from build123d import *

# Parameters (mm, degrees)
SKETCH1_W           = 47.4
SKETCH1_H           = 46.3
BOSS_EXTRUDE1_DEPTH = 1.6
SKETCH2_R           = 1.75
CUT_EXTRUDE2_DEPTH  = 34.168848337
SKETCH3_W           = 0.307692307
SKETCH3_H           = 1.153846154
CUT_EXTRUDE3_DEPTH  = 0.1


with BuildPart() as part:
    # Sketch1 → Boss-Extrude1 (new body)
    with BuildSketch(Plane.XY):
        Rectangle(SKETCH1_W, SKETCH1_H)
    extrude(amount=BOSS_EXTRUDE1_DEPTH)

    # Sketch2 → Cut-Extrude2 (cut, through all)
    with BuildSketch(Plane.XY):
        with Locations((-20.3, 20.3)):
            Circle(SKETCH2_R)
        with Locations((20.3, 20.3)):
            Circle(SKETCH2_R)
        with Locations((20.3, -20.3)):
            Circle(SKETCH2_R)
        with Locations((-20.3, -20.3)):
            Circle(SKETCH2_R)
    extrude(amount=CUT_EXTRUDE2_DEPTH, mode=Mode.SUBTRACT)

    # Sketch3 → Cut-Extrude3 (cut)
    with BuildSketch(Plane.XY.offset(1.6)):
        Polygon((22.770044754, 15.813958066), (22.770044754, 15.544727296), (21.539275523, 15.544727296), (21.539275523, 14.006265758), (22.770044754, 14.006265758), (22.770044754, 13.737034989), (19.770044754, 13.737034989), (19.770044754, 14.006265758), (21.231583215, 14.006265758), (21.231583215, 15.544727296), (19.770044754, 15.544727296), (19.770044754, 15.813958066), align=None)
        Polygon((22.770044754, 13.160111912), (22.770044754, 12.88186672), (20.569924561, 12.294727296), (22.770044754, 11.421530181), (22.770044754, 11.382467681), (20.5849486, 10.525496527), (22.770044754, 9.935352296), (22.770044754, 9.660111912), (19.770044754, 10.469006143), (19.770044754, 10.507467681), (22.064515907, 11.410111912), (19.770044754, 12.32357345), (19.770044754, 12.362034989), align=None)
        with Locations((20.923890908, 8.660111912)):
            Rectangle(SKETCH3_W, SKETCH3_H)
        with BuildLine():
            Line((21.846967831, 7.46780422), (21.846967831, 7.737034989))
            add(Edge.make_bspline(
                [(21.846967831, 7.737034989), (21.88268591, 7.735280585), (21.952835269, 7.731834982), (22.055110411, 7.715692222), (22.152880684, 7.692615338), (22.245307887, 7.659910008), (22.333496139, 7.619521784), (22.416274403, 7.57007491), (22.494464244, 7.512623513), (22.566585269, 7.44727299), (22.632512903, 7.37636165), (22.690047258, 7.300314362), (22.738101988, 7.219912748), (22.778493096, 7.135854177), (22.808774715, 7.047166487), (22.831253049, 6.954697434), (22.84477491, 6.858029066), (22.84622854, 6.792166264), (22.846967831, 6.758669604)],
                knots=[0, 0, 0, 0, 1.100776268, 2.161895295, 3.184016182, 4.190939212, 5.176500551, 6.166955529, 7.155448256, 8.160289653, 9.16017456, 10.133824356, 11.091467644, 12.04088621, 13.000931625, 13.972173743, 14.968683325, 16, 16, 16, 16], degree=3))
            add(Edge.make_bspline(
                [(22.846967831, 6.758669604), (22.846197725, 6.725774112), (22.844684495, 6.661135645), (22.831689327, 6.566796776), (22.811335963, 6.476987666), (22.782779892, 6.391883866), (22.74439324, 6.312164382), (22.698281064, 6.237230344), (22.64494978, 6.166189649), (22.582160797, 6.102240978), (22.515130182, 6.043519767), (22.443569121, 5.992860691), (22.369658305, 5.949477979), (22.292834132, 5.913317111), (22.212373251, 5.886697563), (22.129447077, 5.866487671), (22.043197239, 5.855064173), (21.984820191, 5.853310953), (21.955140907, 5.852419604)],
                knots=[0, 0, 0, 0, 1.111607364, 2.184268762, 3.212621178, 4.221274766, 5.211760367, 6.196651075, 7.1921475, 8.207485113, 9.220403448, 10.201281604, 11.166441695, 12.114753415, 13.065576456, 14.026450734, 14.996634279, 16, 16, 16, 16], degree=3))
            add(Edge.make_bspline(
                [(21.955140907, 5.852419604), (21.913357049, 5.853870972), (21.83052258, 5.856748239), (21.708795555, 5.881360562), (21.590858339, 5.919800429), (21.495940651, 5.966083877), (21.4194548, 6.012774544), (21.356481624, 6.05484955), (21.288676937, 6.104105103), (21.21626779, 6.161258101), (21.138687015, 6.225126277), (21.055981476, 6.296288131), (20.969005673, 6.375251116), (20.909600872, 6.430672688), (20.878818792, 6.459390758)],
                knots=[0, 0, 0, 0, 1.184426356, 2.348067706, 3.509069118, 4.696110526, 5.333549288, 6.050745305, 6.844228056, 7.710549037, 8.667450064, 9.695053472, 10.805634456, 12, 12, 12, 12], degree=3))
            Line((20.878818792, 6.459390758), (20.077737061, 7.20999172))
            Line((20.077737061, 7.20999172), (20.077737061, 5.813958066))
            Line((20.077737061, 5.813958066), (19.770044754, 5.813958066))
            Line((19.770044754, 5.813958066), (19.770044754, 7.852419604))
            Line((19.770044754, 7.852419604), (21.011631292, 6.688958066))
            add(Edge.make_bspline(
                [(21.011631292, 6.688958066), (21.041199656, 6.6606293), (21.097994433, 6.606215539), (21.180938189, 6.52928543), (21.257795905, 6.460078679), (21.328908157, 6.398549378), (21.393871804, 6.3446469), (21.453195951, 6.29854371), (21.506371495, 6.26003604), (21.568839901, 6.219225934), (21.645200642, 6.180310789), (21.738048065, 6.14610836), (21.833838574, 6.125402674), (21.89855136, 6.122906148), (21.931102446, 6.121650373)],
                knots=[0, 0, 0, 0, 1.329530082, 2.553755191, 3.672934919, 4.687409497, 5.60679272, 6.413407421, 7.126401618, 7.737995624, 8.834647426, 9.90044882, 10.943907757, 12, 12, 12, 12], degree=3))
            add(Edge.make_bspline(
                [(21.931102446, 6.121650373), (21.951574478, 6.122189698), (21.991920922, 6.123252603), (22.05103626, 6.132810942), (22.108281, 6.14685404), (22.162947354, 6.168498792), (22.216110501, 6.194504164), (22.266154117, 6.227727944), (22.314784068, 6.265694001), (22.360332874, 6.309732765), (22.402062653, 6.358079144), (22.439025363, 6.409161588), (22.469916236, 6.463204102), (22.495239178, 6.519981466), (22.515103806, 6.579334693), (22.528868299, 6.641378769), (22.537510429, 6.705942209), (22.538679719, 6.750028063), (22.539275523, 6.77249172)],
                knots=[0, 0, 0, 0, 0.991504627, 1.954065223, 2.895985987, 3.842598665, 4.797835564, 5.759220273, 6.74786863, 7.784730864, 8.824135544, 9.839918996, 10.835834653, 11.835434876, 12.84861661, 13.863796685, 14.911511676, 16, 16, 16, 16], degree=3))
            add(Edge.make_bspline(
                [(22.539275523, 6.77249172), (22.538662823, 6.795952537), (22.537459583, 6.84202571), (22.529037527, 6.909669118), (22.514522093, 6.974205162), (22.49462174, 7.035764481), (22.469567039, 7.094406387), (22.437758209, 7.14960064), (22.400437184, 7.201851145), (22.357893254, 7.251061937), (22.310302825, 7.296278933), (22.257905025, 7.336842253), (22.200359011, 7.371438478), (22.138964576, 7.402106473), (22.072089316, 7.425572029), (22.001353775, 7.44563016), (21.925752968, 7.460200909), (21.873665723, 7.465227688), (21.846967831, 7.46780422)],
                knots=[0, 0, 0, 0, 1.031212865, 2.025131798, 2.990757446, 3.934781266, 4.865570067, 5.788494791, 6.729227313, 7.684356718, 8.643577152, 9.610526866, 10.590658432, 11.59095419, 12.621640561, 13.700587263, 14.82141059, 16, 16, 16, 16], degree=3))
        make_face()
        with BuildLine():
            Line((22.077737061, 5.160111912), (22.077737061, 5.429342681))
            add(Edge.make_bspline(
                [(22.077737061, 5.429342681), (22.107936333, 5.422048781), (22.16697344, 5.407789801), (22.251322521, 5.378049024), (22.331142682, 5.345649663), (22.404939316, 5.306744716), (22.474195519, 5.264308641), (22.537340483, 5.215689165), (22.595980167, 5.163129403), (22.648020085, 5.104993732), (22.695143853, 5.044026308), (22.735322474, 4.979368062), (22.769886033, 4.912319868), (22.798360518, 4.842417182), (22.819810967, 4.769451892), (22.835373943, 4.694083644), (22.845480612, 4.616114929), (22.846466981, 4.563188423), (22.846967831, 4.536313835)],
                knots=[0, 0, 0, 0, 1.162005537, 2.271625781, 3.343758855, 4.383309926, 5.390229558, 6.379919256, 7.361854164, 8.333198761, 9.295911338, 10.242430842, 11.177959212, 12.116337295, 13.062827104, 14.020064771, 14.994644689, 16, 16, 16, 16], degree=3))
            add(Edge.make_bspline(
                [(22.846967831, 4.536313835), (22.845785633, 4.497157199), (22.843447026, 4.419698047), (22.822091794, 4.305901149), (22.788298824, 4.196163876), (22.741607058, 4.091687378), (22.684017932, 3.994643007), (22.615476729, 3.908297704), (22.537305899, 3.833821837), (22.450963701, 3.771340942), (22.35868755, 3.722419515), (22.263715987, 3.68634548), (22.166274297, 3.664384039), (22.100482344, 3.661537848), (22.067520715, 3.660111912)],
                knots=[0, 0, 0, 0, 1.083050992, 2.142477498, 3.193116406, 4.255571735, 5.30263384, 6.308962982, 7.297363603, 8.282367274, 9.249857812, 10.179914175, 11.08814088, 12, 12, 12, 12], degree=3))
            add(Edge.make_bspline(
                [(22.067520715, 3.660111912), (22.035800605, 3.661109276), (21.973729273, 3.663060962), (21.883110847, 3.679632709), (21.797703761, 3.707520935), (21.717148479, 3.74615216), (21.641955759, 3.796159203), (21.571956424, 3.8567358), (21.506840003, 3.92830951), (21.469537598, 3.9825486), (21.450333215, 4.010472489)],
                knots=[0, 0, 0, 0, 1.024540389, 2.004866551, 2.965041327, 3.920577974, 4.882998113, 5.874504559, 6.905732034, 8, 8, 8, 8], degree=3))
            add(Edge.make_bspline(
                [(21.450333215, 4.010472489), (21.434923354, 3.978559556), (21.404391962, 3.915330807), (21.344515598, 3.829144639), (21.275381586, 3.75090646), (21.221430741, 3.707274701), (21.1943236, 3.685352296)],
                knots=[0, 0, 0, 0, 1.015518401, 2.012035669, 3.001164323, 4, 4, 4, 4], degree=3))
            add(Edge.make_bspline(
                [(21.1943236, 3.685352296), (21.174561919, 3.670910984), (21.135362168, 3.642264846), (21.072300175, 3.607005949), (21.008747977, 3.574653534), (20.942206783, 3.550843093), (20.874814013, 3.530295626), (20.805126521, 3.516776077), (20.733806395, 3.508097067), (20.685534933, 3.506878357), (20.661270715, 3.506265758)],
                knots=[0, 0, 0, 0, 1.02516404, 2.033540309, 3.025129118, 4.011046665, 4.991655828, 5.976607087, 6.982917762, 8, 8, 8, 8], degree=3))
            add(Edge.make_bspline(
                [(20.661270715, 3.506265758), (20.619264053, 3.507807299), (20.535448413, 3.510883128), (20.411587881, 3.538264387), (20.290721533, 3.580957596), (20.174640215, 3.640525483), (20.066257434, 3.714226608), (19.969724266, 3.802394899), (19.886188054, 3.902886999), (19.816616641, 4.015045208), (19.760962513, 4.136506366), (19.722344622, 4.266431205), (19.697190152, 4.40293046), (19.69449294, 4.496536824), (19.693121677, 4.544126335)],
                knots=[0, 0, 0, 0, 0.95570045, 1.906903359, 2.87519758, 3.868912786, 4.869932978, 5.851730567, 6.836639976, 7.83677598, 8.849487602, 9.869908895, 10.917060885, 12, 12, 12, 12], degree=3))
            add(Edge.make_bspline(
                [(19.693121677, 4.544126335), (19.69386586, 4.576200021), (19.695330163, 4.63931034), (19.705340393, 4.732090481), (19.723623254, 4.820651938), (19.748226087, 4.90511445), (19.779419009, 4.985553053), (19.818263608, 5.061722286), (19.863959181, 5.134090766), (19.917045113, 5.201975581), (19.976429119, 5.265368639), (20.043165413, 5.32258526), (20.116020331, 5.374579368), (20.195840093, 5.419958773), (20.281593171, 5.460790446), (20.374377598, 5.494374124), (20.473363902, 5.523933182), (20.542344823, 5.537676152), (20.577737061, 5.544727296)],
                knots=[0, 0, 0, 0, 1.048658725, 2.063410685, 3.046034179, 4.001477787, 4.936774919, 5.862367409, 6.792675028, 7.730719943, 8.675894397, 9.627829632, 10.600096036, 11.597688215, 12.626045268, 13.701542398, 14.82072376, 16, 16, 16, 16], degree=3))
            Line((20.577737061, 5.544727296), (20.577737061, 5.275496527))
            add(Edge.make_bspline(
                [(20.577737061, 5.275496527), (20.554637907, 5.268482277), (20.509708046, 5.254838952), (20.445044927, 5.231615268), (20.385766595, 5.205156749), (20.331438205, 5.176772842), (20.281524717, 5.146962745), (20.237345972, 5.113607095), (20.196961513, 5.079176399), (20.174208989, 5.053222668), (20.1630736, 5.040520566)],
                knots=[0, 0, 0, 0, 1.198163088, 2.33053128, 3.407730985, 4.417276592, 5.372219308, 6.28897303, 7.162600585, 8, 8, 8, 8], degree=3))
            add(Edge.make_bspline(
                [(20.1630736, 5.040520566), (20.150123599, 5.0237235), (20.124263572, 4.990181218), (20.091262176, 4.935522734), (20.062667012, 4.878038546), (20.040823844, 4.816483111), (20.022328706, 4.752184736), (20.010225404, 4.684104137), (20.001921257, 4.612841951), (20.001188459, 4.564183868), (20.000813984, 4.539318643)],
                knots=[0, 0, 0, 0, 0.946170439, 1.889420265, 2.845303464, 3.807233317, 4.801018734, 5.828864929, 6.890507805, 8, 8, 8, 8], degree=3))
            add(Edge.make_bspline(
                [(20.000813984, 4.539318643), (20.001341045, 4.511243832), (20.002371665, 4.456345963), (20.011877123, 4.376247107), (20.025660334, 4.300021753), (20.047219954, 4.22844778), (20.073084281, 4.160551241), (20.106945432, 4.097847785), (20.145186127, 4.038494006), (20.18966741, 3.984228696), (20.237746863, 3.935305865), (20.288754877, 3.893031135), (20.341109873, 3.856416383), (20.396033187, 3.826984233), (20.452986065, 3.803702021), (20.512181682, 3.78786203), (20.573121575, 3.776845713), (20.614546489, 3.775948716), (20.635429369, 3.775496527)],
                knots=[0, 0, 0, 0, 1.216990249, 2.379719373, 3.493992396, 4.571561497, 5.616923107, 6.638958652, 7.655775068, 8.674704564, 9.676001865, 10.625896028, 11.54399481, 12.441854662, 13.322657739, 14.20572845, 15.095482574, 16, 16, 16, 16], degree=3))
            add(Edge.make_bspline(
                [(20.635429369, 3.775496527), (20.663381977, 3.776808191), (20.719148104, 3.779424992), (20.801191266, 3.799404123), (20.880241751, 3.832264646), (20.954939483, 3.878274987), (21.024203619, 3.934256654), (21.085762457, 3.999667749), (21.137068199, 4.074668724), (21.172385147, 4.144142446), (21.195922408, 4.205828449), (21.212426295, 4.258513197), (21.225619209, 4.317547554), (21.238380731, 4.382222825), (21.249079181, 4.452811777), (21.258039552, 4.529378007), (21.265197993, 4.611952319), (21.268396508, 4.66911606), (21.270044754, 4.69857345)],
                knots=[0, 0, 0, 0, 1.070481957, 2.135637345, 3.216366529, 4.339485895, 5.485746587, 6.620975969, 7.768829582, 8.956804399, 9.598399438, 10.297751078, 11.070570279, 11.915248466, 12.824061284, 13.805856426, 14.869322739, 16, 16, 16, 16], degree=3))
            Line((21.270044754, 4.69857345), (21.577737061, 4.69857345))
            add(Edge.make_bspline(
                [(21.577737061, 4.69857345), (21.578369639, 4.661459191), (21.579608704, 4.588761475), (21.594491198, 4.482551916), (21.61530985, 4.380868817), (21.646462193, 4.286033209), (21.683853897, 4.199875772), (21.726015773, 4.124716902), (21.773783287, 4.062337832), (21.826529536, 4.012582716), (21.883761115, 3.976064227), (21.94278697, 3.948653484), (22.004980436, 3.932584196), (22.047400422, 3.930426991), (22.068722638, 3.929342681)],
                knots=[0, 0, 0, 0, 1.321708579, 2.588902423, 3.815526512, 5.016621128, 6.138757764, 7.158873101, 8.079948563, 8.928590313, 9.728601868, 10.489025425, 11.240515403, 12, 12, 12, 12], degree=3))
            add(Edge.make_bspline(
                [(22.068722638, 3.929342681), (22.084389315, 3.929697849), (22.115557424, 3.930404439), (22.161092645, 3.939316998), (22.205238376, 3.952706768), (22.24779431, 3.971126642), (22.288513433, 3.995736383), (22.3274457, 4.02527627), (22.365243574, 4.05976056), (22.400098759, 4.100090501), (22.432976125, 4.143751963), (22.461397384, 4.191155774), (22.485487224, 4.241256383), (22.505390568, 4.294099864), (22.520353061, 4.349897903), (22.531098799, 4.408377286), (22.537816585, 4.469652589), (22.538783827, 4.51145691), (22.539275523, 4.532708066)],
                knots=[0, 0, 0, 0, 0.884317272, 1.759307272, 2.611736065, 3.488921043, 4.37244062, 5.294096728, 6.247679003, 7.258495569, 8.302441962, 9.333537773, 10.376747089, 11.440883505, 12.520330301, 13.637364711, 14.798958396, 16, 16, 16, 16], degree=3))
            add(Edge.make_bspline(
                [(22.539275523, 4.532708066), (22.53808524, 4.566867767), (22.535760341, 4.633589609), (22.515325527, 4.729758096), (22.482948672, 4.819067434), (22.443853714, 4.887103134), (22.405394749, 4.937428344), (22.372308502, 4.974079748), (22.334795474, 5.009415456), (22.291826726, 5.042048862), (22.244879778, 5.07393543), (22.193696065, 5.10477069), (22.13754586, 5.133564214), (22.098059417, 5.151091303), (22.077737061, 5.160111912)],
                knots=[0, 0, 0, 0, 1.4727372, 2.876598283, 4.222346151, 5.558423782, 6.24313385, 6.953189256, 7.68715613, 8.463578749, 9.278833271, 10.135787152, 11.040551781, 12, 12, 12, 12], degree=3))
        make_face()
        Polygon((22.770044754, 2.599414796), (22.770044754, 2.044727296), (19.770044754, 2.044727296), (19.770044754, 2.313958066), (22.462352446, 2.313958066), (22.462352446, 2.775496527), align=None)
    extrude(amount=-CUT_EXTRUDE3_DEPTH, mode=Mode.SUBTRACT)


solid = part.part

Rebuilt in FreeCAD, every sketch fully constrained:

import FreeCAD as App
import Part
import Sketcher

doc = App.newDocument("Part")
body = doc.addObject("PartDesign::Body", "Body")

sketch1 = body.newObject("Sketcher::SketchObject", "Sketch")
sketch1.AttachmentSupport = (doc.getObject("XY_Plane"), [""])
sketch1.MapMode = "FlatFace"
sketch1.addGeometry([
    Part.LineSegment(App.Vector(-24, 23, 0), App.Vector(-24, -23, 0)),
    Part.LineSegment(App.Vector(-24, -23, 0), App.Vector(24, -23, 0)),
    Part.LineSegment(App.Vector(24, -23, 0), App.Vector(24, 23, 0)),
    Part.LineSegment(App.Vector(24, 23, 0), App.Vector(-24, 23, 0)),
], False)
sketch1.addConstraint([
    Sketcher.Constraint("Coincident", 0, 2, 1, 1),
    Sketcher.Constraint("Coincident", 1, 2, 2, 1),
    Sketcher.Constraint("Coincident", 2, 2, 3, 1),
    Sketcher.Constraint("Coincident", 3, 2, 0, 1),
    Sketcher.Constraint("Vertical", 0),
    Sketcher.Constraint("Horizontal", 1),
    Sketcher.Constraint("Vertical", 2),
    Sketcher.Constraint("Horizontal", 3),
    Sketcher.Constraint("Symmetric", 0, 2, 2, 2, -1, 1),
    Sketcher.Constraint("DistanceX", 1, 1, 1, 2, 47.4),
    Sketcher.Constraint("DistanceY", 0, 2, 0, 1, 46.3),
])
pad1 = body.newObject("PartDesign::Pad", "Pad")
pad1.Profile = sketch1
pad1.Length = 1.6

sketch2 = body.newObject("Sketcher::SketchObject", "Sketch001")
sketch2.AttachmentSupport = (doc.getObject("XY_Plane"), [""])
sketch2.MapMode = "FlatFace"
sketch2.addGeometry([
    Part.Circle(App.Vector(-20.3, 20.3, 0), App.Vector(0, 0, 1), 1.8),
    Part.Circle(App.Vector(20.3, 20.3, 0), App.Vector(0, 0, 1), 1.8),
    Part.Circle(App.Vector(20.3, -20.3, 0), App.Vector(0, 0, 1), 1.8),
    Part.Circle(App.Vector(-20.3, -20.3, 0), App.Vector(0, 0, 1), 1.8),
], False)
sketch2.addConstraint([
    Sketcher.Constraint("Equal", 0, 1),
    Sketcher.Constraint("Equal", 1, 2),
    Sketcher.Constraint("Equal", 2, 3),
    Sketcher.Constraint("Symmetric", 0, 3, 2, 3, -1, 1),
    Sketcher.Constraint("Symmetric", 1, 3, 3, 3, -1, 1),
    Sketcher.Constraint("Symmetric", 0, 3, 1, 3, -2),
    Sketcher.Constraint("Diameter", 0, 3.5),
    Sketcher.Constraint("DistanceX", 0, 3, -1, 1, 20.3),
    Sketcher.Constraint("DistanceY", -1, 1, 0, 3, 20.3),
])
pocket1 = body.newObject("PartDesign::Pocket", "Pocket")
pocket1.Profile = sketch2
pocket1.Type = "ThroughAll"
pocket1.Reversed = True

sketch3 = body.newObject("Sketcher::SketchObject", "Sketch002")
sketch3.AttachmentSupport = (doc.getObject("XY_Plane"), [""])
sketch3.MapMode = "FlatFace"
sketch3.AttachmentOffset = App.Placement(App.Vector(0, 0, 1.6), App.Rotation())
sketch3.addGeometry([
    Part.LineSegment(App.Vector(22.770045, 15.544727, 0), App.Vector(22.770045, 15.813958, 0)),
    Part.LineSegment(App.Vector(22.770045, 15.813958, 0), App.Vector(19.770045, 15.813958, 0)),
    Part.LineSegment(App.Vector(19.770045, 15.813958, 0), App.Vector(19.770045, 15.544727, 0)),
    Part.LineSegment(App.Vector(19.770045, 15.544727, 0), App.Vector(21.231583, 15.544727, 0)),
    Part.LineSegment(App.Vector(21.231583, 15.544727, 0), App.Vector(21.231583, 14.006266, 0)),
    Part.LineSegment(App.Vector(21.231583, 14.006266, 0), App.Vector(19.770045, 14.006266, 0)),
    Part.LineSegment(App.Vector(19.770045, 14.006266, 0), App.Vector(19.770045, 13.737035, 0)),
    Part.LineSegment(App.Vector(19.770045, 13.737035, 0), App.Vector(22.770045, 13.737035, 0)),
    Part.LineSegment(App.Vector(22.770045, 13.737035, 0), App.Vector(22.770045, 14.006266, 0)),
    Part.LineSegment(App.Vector(22.770045, 14.006266, 0), App.Vector(21.539276, 14.006266, 0)),
    Part.LineSegment(App.Vector(21.539276, 14.006266, 0), App.Vector(21.539276, 15.544727, 0)),
    Part.LineSegment(App.Vector(21.539276, 15.544727, 0), App.Vector(22.770045, 15.544727, 0)),
    Part.LineSegment(App.Vector(22.770045, 12.881867, 0), App.Vector(22.770045, 13.160112, 0)),
    Part.LineSegment(App.Vector(22.770045, 13.160112, 0), App.Vector(19.770045, 12.362035, 0)),
    Part.LineSegment(App.Vector(19.770045, 12.362035, 0), App.Vector(19.770045, 12.323573, 0)),
    Part.LineSegment(App.Vector(19.770045, 12.323573, 0), App.Vector(22.064516, 11.410112, 0)),
    Part.LineSegment(App.Vector(22.064516, 11.410112, 0), App.Vector(19.770045, 10.507468, 0)),
    Part.LineSegment(App.Vector(19.770045, 10.507468, 0), App.Vector(19.770045, 10.469006, 0)),
    Part.LineSegment(App.Vector(19.770045, 10.469006, 0), App.Vector(22.770045, 9.660112, 0)),
    Part.LineSegment(App.Vector(22.770045, 9.660112, 0), App.Vector(22.770045, 9.935352, 0)),
    Part.LineSegment(App.Vector(22.770045, 9.935352, 0), App.Vector(20.584949, 10.525497, 0)),
    Part.LineSegment(App.Vector(20.584949, 10.525497, 0), App.Vector(22.770045, 11.382468, 0)),
    Part.LineSegment(App.Vector(22.770045, 11.382468, 0), App.Vector(22.770045, 11.42153, 0)),
    Part.LineSegment(App.Vector(22.770045, 11.42153, 0), App.Vector(20.569925, 12.294727, 0)),
    Part.LineSegment(App.Vector(20.569925, 12.294727, 0), App.Vector(22.770045, 12.881867, 0)),
    Part.LineSegment(App.Vector(20.770045, 9.237035, 0), App.Vector(20.770045, 8.083189, 0)),
    Part.LineSegment(App.Vector(20.770045, 8.083189, 0), App.Vector(21.077737, 8.083189, 0)),
    Part.LineSegment(App.Vector(21.077737, 8.083189, 0), App.Vector(21.077737, 9.237035, 0)),
    Part.LineSegment(App.Vector(21.077737, 9.237035, 0), App.Vector(20.770045, 9.237035, 0)),
    Part.LineSegment(App.Vector(21.846968, 7.737035, 0), App.Vector(21.846968, 7.467804, 0)),
    Part.BSplineCurve([App.Vector(22.539276, 6.772492, 0), App.Vector(22.538663, 6.795953, 0), App.Vector(22.53746, 6.842026, 0), App.Vector(22.529038, 6.909669, 0), App.Vector(22.514522, 6.974205, 0), App.Vector(22.494622, 7.035764, 0), App.Vector(22.469567, 7.094406, 0), App.Vector(22.437758, 7.149601, 0), App.Vector(22.400437, 7.201851, 0), App.Vector(22.357893, 7.251062, 0), App.Vector(22.310303, 7.296279, 0), App.Vector(22.257905, 7.336842, 0), App.Vector(22.200359, 7.371438, 0), App.Vector(22.138965, 7.402106, 0), App.Vector(22.072089, 7.425572, 0), App.Vector(22.001354, 7.44563, 0), App.Vector(21.925753, 7.460201, 0), App.Vector(21.873666, 7.465228, 0), App.Vector(21.846968, 7.467804, 0)], [4, 1, 1, 1, 1, 1, 1, 1, 1, 1, 1, 1, 1, 1, 1, 1, 4], [0, 1.031212865, 2.025131798, 2.990757446, 3.934781266, 4.865570067, 5.788494791, 6.729227313, 7.684356718, 8.643577152, 9.610526866, 10.590658432, 11.59095419, 12.621640561, 13.700587263, 14.82141059, 16], False, 3, [1, 1, 1, 1, 1, 1, 1, 1, 1, 1, 1, 1, 1, 1, 1, 1, 1, 1, 1], False),
    Part.BSplineCurve([App.Vector(21.931102, 6.12165, 0), App.Vector(21.951574, 6.12219, 0), App.Vector(21.991921, 6.123253, 0), App.Vector(22.051036, 6.132811, 0), App.Vector(22.108281, 6.146854, 0), App.Vector(22.162947, 6.168499, 0), App.Vector(22.216111, 6.194504, 0), App.Vector(22.266154, 6.227728, 0), App.Vector(22.314784, 6.265694, 0), App.Vector(22.360333, 6.309733, 0), App.Vector(22.402063, 6.358079, 0), App.Vector(22.439025, 6.409162, 0), App.Vector(22.469916, 6.463204, 0), App.Vector(22.495239, 6.519981, 0), App.Vector(22.515104, 6.579335, 0), App.Vector(22.528868, 6.641379, 0), App.Vector(22.53751, 6.705942, 0), App.Vector(22.53868, 6.750028, 0), App.Vector(22.539276, 6.772492, 0)], [4, 1, 1, 1, 1, 1, 1, 1, 1, 1, 1, 1, 1, 1, 1, 1, 4], [0, 0.991504627, 1.954065223, 2.895985987, 3.842598665, 4.797835564, 5.759220273, 6.74786863, 7.784730864, 8.824135544, 9.839918996, 10.835834653, 11.835434876, 12.84861661, 13.863796685, 14.911511676, 16], False, 3, [1, 1, 1, 1, 1, 1, 1, 1, 1, 1, 1, 1, 1, 1, 1, 1, 1, 1, 1], False),
    Part.BSplineCurve([App.Vector(21.011631, 6.688958, 0), App.Vector(21.0412, 6.660629, 0), App.Vector(21.097994, 6.606216, 0), App.Vector(21.180938, 6.529285, 0), App.Vector(21.257796, 6.460079, 0), App.Vector(21.328908, 6.398549, 0), App.Vector(21.393872, 6.344647, 0), App.Vector(21.453196, 6.298544, 0), App.Vector(21.506371, 6.260036, 0), App.Vector(21.56884, 6.219226, 0), App.Vector(21.645201, 6.180311, 0), App.Vector(21.738048, 6.146108, 0), App.Vector(21.833839, 6.125403, 0), App.Vector(21.898551, 6.122906, 0), App.Vector(21.931102, 6.12165, 0)], [4, 1, 1, 1, 1, 1, 1, 1, 1, 1, 1, 1, 4], [0, 1.329530082, 2.553755191, 3.672934919, 4.687409497, 5.60679272, 6.413407421, 7.126401618, 7.737995624, 8.834647426, 9.90044882, 10.943907757, 12], False, 3, [1, 1, 1, 1, 1, 1, 1, 1, 1, 1, 1, 1, 1, 1, 1], False),
    Part.LineSegment(App.Vector(21.011631, 6.688958, 0), App.Vector(19.770045, 7.85242, 0)),
    Part.LineSegment(App.Vector(19.770045, 7.85242, 0), App.Vector(19.770045, 5.813958, 0)),
    Part.LineSegment(App.Vector(19.770045, 5.813958, 0), App.Vector(20.077737, 5.813958, 0)),
    Part.LineSegment(App.Vector(20.077737, 5.813958, 0), App.Vector(20.077737, 7.209992, 0)),
    Part.LineSegment(App.Vector(20.077737, 7.209992, 0), App.Vector(20.878819, 6.459391, 0)),
    Part.BSplineCurve([App.Vector(21.955141, 5.85242, 0), App.Vector(21.913357, 5.853871, 0), App.Vector(21.830523, 5.856748, 0), App.Vector(21.708796, 5.881361, 0), App.Vector(21.590858, 5.9198, 0), App.Vector(21.495941, 5.966084, 0), App.Vector(21.419455, 6.012775, 0), App.Vector(21.356482, 6.05485, 0), App.Vector(21.288677, 6.104105, 0), App.Vector(21.216268, 6.161258, 0), App.Vector(21.138687, 6.225126, 0), App.Vector(21.055981, 6.296288, 0), App.Vector(20.969006, 6.375251, 0), App.Vector(20.909601, 6.430673, 0), App.Vector(20.878819, 6.459391, 0)], [4, 1, 1, 1, 1, 1, 1, 1, 1, 1, 1, 1, 4], [0, 1.184426356, 2.348067706, 3.509069118, 4.696110526, 5.333549288, 6.050745305, 6.844228056, 7.710549037, 8.667450064, 9.695053472, 10.805634456, 12], False, 3, [1, 1, 1, 1, 1, 1, 1, 1, 1, 1, 1, 1, 1, 1, 1], False),
    Part.BSplineCurve([App.Vector(22.846968, 6.75867, 0), App.Vector(22.846198, 6.725774, 0), App.Vector(22.844684, 6.661136, 0), App.Vector(22.831689, 6.566797, 0), App.Vector(22.811336, 6.476988, 0), App.Vector(22.78278, 6.391884, 0), App.Vector(22.744393, 6.312164, 0), App.Vector(22.698281, 6.23723, 0), App.Vector(22.64495, 6.16619, 0), App.Vector(22.582161, 6.102241, 0), App.Vector(22.51513, 6.04352, 0), App.Vector(22.443569, 5.992861, 0), App.Vector(22.369658, 5.949478, 0), App.Vector(22.292834, 5.913317, 0), App.Vector(22.212373, 5.886698, 0), App.Vector(22.129447, 5.866488, 0), App.Vector(22.043197, 5.855064, 0), App.Vector(21.98482, 5.853311, 0), App.Vector(21.955141, 5.85242, 0)], [4, 1, 1, 1, 1, 1, 1, 1, 1, 1, 1, 1, 1, 1, 1, 1, 4], [0, 1.111607364, 2.184268762, 3.212621178, 4.221274766, 5.211760367, 6.196651075, 7.1921475, 8.207485113, 9.220403448, 10.201281604, 11.166441695, 12.114753415, 13.065576456, 14.026450734, 14.996634279, 16], False, 3, [1, 1, 1, 1, 1, 1, 1, 1, 1, 1, 1, 1, 1, 1, 1, 1, 1, 1, 1], False),
    Part.BSplineCurve([App.Vector(21.846968, 7.737035, 0), App.Vector(21.882686, 7.735281, 0), App.Vector(21.952835, 7.731835, 0), App.Vector(22.05511, 7.715692, 0), App.Vector(22.152881, 7.692615, 0), App.Vector(22.245308, 7.65991, 0), App.Vector(22.333496, 7.619522, 0), App.Vector(22.416274, 7.570075, 0), App.Vector(22.494464, 7.512624, 0), App.Vector(22.566585, 7.447273, 0), App.Vector(22.632513, 7.376362, 0), App.Vector(22.690047, 7.300314, 0), App.Vector(22.738102, 7.219913, 0), App.Vector(22.778493, 7.135854, 0), App.Vector(22.808775, 7.047166, 0), App.Vector(22.831253, 6.954697, 0), App.Vector(22.844775, 6.858029, 0), App.Vector(22.846229, 6.792166, 0), App.Vector(22.846968, 6.75867, 0)], [4, 1, 1, 1, 1, 1, 1, 1, 1, 1, 1, 1, 1, 1, 1, 1, 4], [0, 1.100776268, 2.161895295, 3.184016182, 4.190939212, 5.176500551, 6.166955529, 7.155448256, 8.160289653, 9.16017456, 10.133824356, 11.091467644, 12.04088621, 13.000931625, 13.972173743, 14.968683325, 16], False, 3, [1, 1, 1, 1, 1, 1, 1, 1, 1, 1, 1, 1, 1, 1, 1, 1, 1, 1, 1], False),
    Part.LineSegment(App.Vector(22.077737, 5.429343, 0), App.Vector(22.077737, 5.160112, 0)),
    Part.BSplineCurve([App.Vector(22.539276, 4.532708, 0), App.Vector(22.538085, 4.566868, 0), App.Vector(22.53576, 4.63359, 0), App.Vector(22.515326, 4.729758, 0), App.Vector(22.482949, 4.819067, 0), App.Vector(22.443854, 4.887103, 0), App.Vector(22.405395, 4.937428, 0), App.Vector(22.372309, 4.97408, 0), App.Vector(22.334795, 5.009415, 0), App.Vector(22.291827, 5.042049, 0), App.Vector(22.24488, 5.073935, 0), App.Vector(22.193696, 5.104771, 0), App.Vector(22.137546, 5.133564, 0), App.Vector(22.098059, 5.151091, 0), App.Vector(22.077737, 5.160112, 0)], [4, 1, 1, 1, 1, 1, 1, 1, 1, 1, 1, 1, 4], [0, 1.4727372, 2.876598283, 4.222346151, 5.558423782, 6.24313385, 6.953189256, 7.68715613, 8.463578749, 9.278833271, 10.135787152, 11.040551781, 12], False, 3, [1, 1, 1, 1, 1, 1, 1, 1, 1, 1, 1, 1, 1, 1, 1], False),
    Part.BSplineCurve([App.Vector(22.068723, 3.929343, 0), App.Vector(22.084389, 3.929698, 0), App.Vector(22.115557, 3.930404, 0), App.Vector(22.161093, 3.939317, 0), App.Vector(22.205238, 3.952707, 0), App.Vector(22.247794, 3.971127, 0), App.Vector(22.288513, 3.995736, 0), App.Vector(22.327446, 4.025276, 0), App.Vector(22.365244, 4.059761, 0), App.Vector(22.400099, 4.100091, 0), App.Vector(22.432976, 4.143752, 0), App.Vector(22.461397, 4.191156, 0), App.Vector(22.485487, 4.241256, 0), App.Vector(22.505391, 4.2941, 0), App.Vector(22.520353, 4.349898, 0), App.Vector(22.531099, 4.408377, 0), App.Vector(22.537817, 4.469653, 0), App.Vector(22.538784, 4.511457, 0), App.Vector(22.539276, 4.532708, 0)], [4, 1, 1, 1, 1, 1, 1, 1, 1, 1, 1, 1, 1, 1, 1, 1, 4], [0, 0.884317272, 1.759307272, 2.611736065, 3.488921043, 4.37244062, 5.294096728, 6.247679003, 7.258495569, 8.302441962, 9.333537773, 10.376747089, 11.440883505, 12.520330301, 13.637364711, 14.798958396, 16], False, 3, [1, 1, 1, 1, 1, 1, 1, 1, 1, 1, 1, 1, 1, 1, 1, 1, 1, 1, 1], False),
    Part.BSplineCurve([App.Vector(21.577737, 4.698573, 0), App.Vector(21.57837, 4.661459, 0), App.Vector(21.579609, 4.588761, 0), App.Vector(21.594491, 4.482552, 0), App.Vector(21.61531, 4.380869, 0), App.Vector(21.646462, 4.286033, 0), App.Vector(21.683854, 4.199876, 0), App.Vector(21.726016, 4.124717, 0), App.Vector(21.773783, 4.062338, 0), App.Vector(21.82653, 4.012583, 0), App.Vector(21.883761, 3.976064, 0), App.Vector(21.942787, 3.948653, 0), App.Vector(22.00498, 3.932584, 0), App.Vector(22.0474, 3.930427, 0), App.Vector(22.068723, 3.929343, 0)], [4, 1, 1, 1, 1, 1, 1, 1, 1, 1, 1, 1, 4], [0, 1.321708579, 2.588902423, 3.815526512, 5.016621128, 6.138757764, 7.158873101, 8.079948563, 8.928590313, 9.728601868, 10.489025425, 11.240515403, 12], False, 3, [1, 1, 1, 1, 1, 1, 1, 1, 1, 1, 1, 1, 1, 1, 1], False),
    Part.LineSegment(App.Vector(21.577737, 4.698573, 0), App.Vector(21.270045, 4.698573, 0)),
    Part.BSplineCurve([App.Vector(20.635429, 3.775497, 0), App.Vector(20.663382, 3.776808, 0), App.Vector(20.719148, 3.779425, 0), App.Vector(20.801191, 3.799404, 0), App.Vector(20.880242, 3.832265, 0), App.Vector(20.954939, 3.878275, 0), App.Vector(21.024204, 3.934257, 0), App.Vector(21.085762, 3.999668, 0), App.Vector(21.137068, 4.074669, 0), App.Vector(21.172385, 4.144142, 0), App.Vector(21.195922, 4.205828, 0), App.Vector(21.212426, 4.258513, 0), App.Vector(21.225619, 4.317548, 0), App.Vector(21.238381, 4.382223, 0), App.Vector(21.249079, 4.452812, 0), App.Vector(21.25804, 4.529378, 0), App.Vector(21.265198, 4.611952, 0), App.Vector(21.268397, 4.669116, 0), App.Vector(21.270045, 4.698573, 0)], [4, 1, 1, 1, 1, 1, 1, 1, 1, 1, 1, 1, 1, 1, 1, 1, 4], [0, 1.070481957, 2.135637345, 3.216366529, 4.339485895, 5.485746587, 6.620975969, 7.768829582, 8.956804399, 9.598399438, 10.297751078, 11.070570279, 11.915248466, 12.824061284, 13.805856426, 14.869322739, 16], False, 3, [1, 1, 1, 1, 1, 1, 1, 1, 1, 1, 1, 1, 1, 1, 1, 1, 1, 1, 1], False),
    Part.BSplineCurve([App.Vector(20.000814, 4.539319, 0), App.Vector(20.001341, 4.511244, 0), App.Vector(20.002372, 4.456346, 0), App.Vector(20.011877, 4.376247, 0), App.Vector(20.02566, 4.300022, 0), App.Vector(20.04722, 4.228448, 0), App.Vector(20.073084, 4.160551, 0), App.Vector(20.106945, 4.097848, 0), App.Vector(20.145186, 4.038494, 0), App.Vector(20.189667, 3.984229, 0), App.Vector(20.237747, 3.935306, 0), App.Vector(20.288755, 3.893031, 0), App.Vector(20.34111, 3.856416, 0), App.Vector(20.396033, 3.826984, 0), App.Vector(20.452986, 3.803702, 0), App.Vector(20.512182, 3.787862, 0), App.Vector(20.573122, 3.776846, 0), App.Vector(20.614546, 3.775949, 0), App.Vector(20.635429, 3.775497, 0)], [4, 1, 1, 1, 1, 1, 1, 1, 1, 1, 1, 1, 1, 1, 1, 1, 4], [0, 1.216990249, 2.379719373, 3.493992396, 4.571561497, 5.616923107, 6.638958652, 7.655775068, 8.674704564, 9.676001865, 10.625896028, 11.54399481, 12.441854662, 13.322657739, 14.20572845, 15.095482574, 16], False, 3, [1, 1, 1, 1, 1, 1, 1, 1, 1, 1, 1, 1, 1, 1, 1, 1, 1, 1, 1], False),
    Part.BSplineCurve([App.Vector(20.163074, 5.040521, 0), App.Vector(20.150124, 5.023724, 0), App.Vector(20.124264, 4.990181, 0), App.Vector(20.091262, 4.935523, 0), App.Vector(20.062667, 4.878039, 0), App.Vector(20.040824, 4.816483, 0), App.Vector(20.022329, 4.752185, 0), App.Vector(20.010225, 4.684104, 0), App.Vector(20.001921, 4.612842, 0), App.Vector(20.001188, 4.564184, 0), App.Vector(20.000814, 4.539319, 0)], [4, 1, 1, 1, 1, 1, 1, 1, 4], [0, 0.946170439, 1.889420265, 2.845303464, 3.807233317, 4.801018734, 5.828864929, 6.890507805, 8], False, 3, [1, 1, 1, 1, 1, 1, 1, 1, 1, 1, 1], False),
    Part.BSplineCurve([App.Vector(20.577737, 5.275497, 0), App.Vector(20.554638, 5.268482, 0), App.Vector(20.509708, 5.254839, 0), App.Vector(20.445045, 5.231615, 0), App.Vector(20.385767, 5.205157, 0), App.Vector(20.331438, 5.176773, 0), App.Vector(20.281525, 5.146963, 0), App.Vector(20.237346, 5.113607, 0), App.Vector(20.196962, 5.079176, 0), App.Vector(20.174209, 5.053223, 0), App.Vector(20.163074, 5.040521, 0)], [4, 1, 1, 1, 1, 1, 1, 1, 4], [0, 1.198163088, 2.33053128, 3.407730985, 4.417276592, 5.372219308, 6.28897303, 7.162600585, 8], False, 3, [1, 1, 1, 1, 1, 1, 1, 1, 1, 1, 1], False),
    Part.LineSegment(App.Vector(20.577737, 5.275497, 0), App.Vector(20.577737, 5.544727, 0)),
    Part.BSplineCurve([App.Vector(19.693122, 4.544126, 0), App.Vector(19.693866, 4.5762, 0), App.Vector(19.69533, 4.63931, 0), App.Vector(19.70534, 4.73209, 0), App.Vector(19.723623, 4.820652, 0), App.Vector(19.748226, 4.905114, 0), App.Vector(19.779419, 4.985553, 0), App.Vector(19.818264, 5.061722, 0), App.Vector(19.863959, 5.134091, 0), App.Vector(19.917045, 5.201976, 0), App.Vector(19.976429, 5.265369, 0), App.Vector(20.043165, 5.322585, 0), App.Vector(20.11602, 5.374579, 0), App.Vector(20.19584, 5.419959, 0), App.Vector(20.281593, 5.46079, 0), App.Vector(20.374378, 5.494374, 0), App.Vector(20.473364, 5.523933, 0), App.Vector(20.542345, 5.537676, 0), App.Vector(20.577737, 5.544727, 0)], [4, 1, 1, 1, 1, 1, 1, 1, 1, 1, 1, 1, 1, 1, 1, 1, 4], [0, 1.048658725, 2.063410685, 3.046034179, 4.001477787, 4.936774919, 5.862367409, 6.792675028, 7.730719943, 8.675894397, 9.627829632, 10.600096036, 11.597688215, 12.626045268, 13.701542398, 14.82072376, 16], False, 3, [1, 1, 1, 1, 1, 1, 1, 1, 1, 1, 1, 1, 1, 1, 1, 1, 1, 1, 1], False),
    Part.BSplineCurve([App.Vector(20.661271, 3.506266, 0), App.Vector(20.619264, 3.507807, 0), App.Vector(20.535448, 3.510883, 0), App.Vector(20.411588, 3.538264, 0), App.Vector(20.290722, 3.580958, 0), App.Vector(20.17464, 3.640525, 0), App.Vector(20.066257, 3.714227, 0), App.Vector(19.969724, 3.802395, 0), App.Vector(19.886188, 3.902887, 0), App.Vector(19.816617, 4.015045, 0), App.Vector(19.760963, 4.136506, 0), App.Vector(19.722345, 4.266431, 0), App.Vector(19.69719, 4.40293, 0), App.Vector(19.694493, 4.496537, 0), App.Vector(19.693122, 4.544126, 0)], [4, 1, 1, 1, 1, 1, 1, 1, 1, 1, 1, 1, 4], [0, 0.95570045, 1.906903359, 2.87519758, 3.868912786, 4.869932978, 5.851730567, 6.836639976, 7.83677598, 8.849487602, 9.869908895, 10.917060885, 12], False, 3, [1, 1, 1, 1, 1, 1, 1, 1, 1, 1, 1, 1, 1, 1, 1], False),
    Part.BSplineCurve([App.Vector(21.194324, 3.685352, 0), App.Vector(21.174562, 3.670911, 0), App.Vector(21.135362, 3.642265, 0), App.Vector(21.0723, 3.607006, 0), App.Vector(21.008748, 3.574654, 0), App.Vector(20.942207, 3.550843, 0), App.Vector(20.874814, 3.530296, 0), App.Vector(20.805127, 3.516776, 0), App.Vector(20.733806, 3.508097, 0), App.Vector(20.685535, 3.506878, 0), App.Vector(20.661271, 3.506266, 0)], [4, 1, 1, 1, 1, 1, 1, 1, 4], [0, 1.02516404, 2.033540309, 3.025129118, 4.011046665, 4.991655828, 5.976607087, 6.982917762, 8], False, 3, [1, 1, 1, 1, 1, 1, 1, 1, 1, 1, 1], False),
    Part.BSplineCurve([App.Vector(21.450333, 4.010472, 0), App.Vector(21.434923, 3.97856, 0), App.Vector(21.404392, 3.915331, 0), App.Vector(21.344516, 3.829145, 0), App.Vector(21.275382, 3.750906, 0), App.Vector(21.221431, 3.707275, 0), App.Vector(21.194324, 3.685352, 0)], [4, 1, 1, 1, 4], [0, 1.015518401, 2.012035669, 3.001164323, 4], False, 3, [1, 1, 1, 1, 1, 1, 1], False),
    Part.BSplineCurve([App.Vector(22.067521, 3.660112, 0), App.Vector(22.035801, 3.661109, 0), App.Vector(21.973729, 3.663061, 0), App.Vector(21.883111, 3.679633, 0), App.Vector(21.797704, 3.707521, 0), App.Vector(21.717148, 3.746152, 0), App.Vector(21.641956, 3.796159, 0), App.Vector(21.571956, 3.856736, 0), App.Vector(21.50684, 3.92831, 0), App.Vector(21.469538, 3.982549, 0), App.Vector(21.450333, 4.010472, 0)], [4, 1, 1, 1, 1, 1, 1, 1, 4], [0, 1.024540389, 2.004866551, 2.965041327, 3.920577974, 4.882998113, 5.874504559, 6.905732034, 8], False, 3, [1, 1, 1, 1, 1, 1, 1, 1, 1, 1, 1], False),
    Part.BSplineCurve([App.Vector(22.846968, 4.536314, 0), App.Vector(22.845786, 4.497157, 0), App.Vector(22.843447, 4.419698, 0), App.Vector(22.822092, 4.305901, 0), App.Vector(22.788299, 4.196164, 0), App.Vector(22.741607, 4.091687, 0), App.Vector(22.684018, 3.994643, 0), App.Vector(22.615477, 3.908298, 0), App.Vector(22.537306, 3.833822, 0), App.Vector(22.450964, 3.771341, 0), App.Vector(22.358688, 3.72242, 0), App.Vector(22.263716, 3.686345, 0), App.Vector(22.166274, 3.664384, 0), App.Vector(22.100482, 3.661538, 0), App.Vector(22.067521, 3.660112, 0)], [4, 1, 1, 1, 1, 1, 1, 1, 1, 1, 1, 1, 4], [0, 1.083050992, 2.142477498, 3.193116406, 4.255571735, 5.30263384, 6.308962982, 7.297363603, 8.282367274, 9.249857812, 10.179914175, 11.08814088, 12], False, 3, [1, 1, 1, 1, 1, 1, 1, 1, 1, 1, 1, 1, 1, 1, 1], False),
    Part.BSplineCurve([App.Vector(22.077737, 5.429343, 0), App.Vector(22.107936, 5.422049, 0), App.Vector(22.166973, 5.40779, 0), App.Vector(22.251323, 5.378049, 0), App.Vector(22.331143, 5.34565, 0), App.Vector(22.404939, 5.306745, 0), App.Vector(22.474196, 5.264309, 0), App.Vector(22.53734, 5.215689, 0), App.Vector(22.59598, 5.163129, 0), App.Vector(22.64802, 5.104994, 0), App.Vector(22.695144, 5.044026, 0), App.Vector(22.735322, 4.979368, 0), App.Vector(22.769886, 4.91232, 0), App.Vector(22.798361, 4.842417, 0), App.Vector(22.819811, 4.769452, 0), App.Vector(22.835374, 4.694084, 0), App.Vector(22.845481, 4.616115, 0), App.Vector(22.846467, 4.563188, 0), App.Vector(22.846968, 4.536314, 0)], [4, 1, 1, 1, 1, 1, 1, 1, 1, 1, 1, 1, 1, 1, 1, 1, 4], [0, 1.162005537, 2.271625781, 3.343758855, 4.383309926, 5.390229558, 6.379919256, 7.361854164, 8.333198761, 9.295911338, 10.242430842, 11.177959212, 12.116337295, 13.062827104, 14.020064771, 14.994644689, 16], False, 3, [1, 1, 1, 1, 1, 1, 1, 1, 1, 1, 1, 1, 1, 1, 1, 1, 1, 1, 1], False),
    Part.LineSegment(App.Vector(22.770045, 2.044727, 0), App.Vector(22.770045, 2.599415, 0)),
    Part.LineSegment(App.Vector(22.770045, 2.599415, 0), App.Vector(22.462352, 2.775497, 0)),
    Part.LineSegment(App.Vector(22.462352, 2.775497, 0), App.Vector(22.462352, 2.313958, 0)),
    Part.LineSegment(App.Vector(22.462352, 2.313958, 0), App.Vector(19.770045, 2.313958, 0)),
    Part.LineSegment(App.Vector(19.770045, 2.313958, 0), App.Vector(19.770045, 2.044727, 0)),
    Part.LineSegment(App.Vector(19.770045, 2.044727, 0), App.Vector(22.770045, 2.044727, 0)),
], False)
sketch3.addConstraint([
    Sketcher.Constraint("Block", 30),
    Sketcher.Constraint("Block", 31),
    Sketcher.Constraint("Block", 32),
    Sketcher.Constraint("Block", 38),
    Sketcher.Constraint("Block", 39),
    Sketcher.Constraint("Block", 40),
    Sketcher.Constraint("Block", 42),
    Sketcher.Constraint("Block", 43),
    Sketcher.Constraint("Block", 44),
    Sketcher.Constraint("Block", 46),
    Sketcher.Constraint("Block", 47),
    Sketcher.Constraint("Block", 48),
    Sketcher.Constraint("Block", 49),
    Sketcher.Constraint("Block", 51),
    Sketcher.Constraint("Block", 52),
    Sketcher.Constraint("Block", 53),
    Sketcher.Constraint("Block", 54),
    Sketcher.Constraint("Block", 55),
    Sketcher.Constraint("Block", 56),
    Sketcher.Constraint("Block", 57),
    Sketcher.Constraint("Coincident", 0, 2, 1, 1),
    Sketcher.Constraint("Coincident", 1, 2, 2, 1),
    Sketcher.Constraint("Coincident", 2, 2, 3, 1),
    Sketcher.Constraint("Coincident", 3, 2, 4, 1),
    Sketcher.Constraint("Coincident", 4, 2, 5, 1),
    Sketcher.Constraint("Coincident", 5, 2, 6, 1),
    Sketcher.Constraint("Coincident", 6, 2, 7, 1),
    Sketcher.Constraint("Coincident", 7, 2, 8, 1),
    Sketcher.Constraint("Coincident", 8, 2, 9, 1),
    Sketcher.Constraint("Coincident", 9, 2, 10, 1),
    Sketcher.Constraint("Coincident", 10, 2, 11, 1),
    Sketcher.Constraint("Coincident", 11, 2, 0, 1),
    Sketcher.Constraint("Coincident", 12, 2, 13, 1),
    Sketcher.Constraint("Coincident", 13, 2, 14, 1),
    Sketcher.Constraint("Coincident", 14, 2, 15, 1),
    Sketcher.Constraint("Coincident", 15, 2, 16, 1),
    Sketcher.Constraint("Coincident", 16, 2, 17, 1),
    Sketcher.Constraint("Coincident", 17, 2, 18, 1),
    Sketcher.Constraint("Coincident", 18, 2, 19, 1),
    Sketcher.Constraint("Coincident", 19, 2, 20, 1),
    Sketcher.Constraint("Coincident", 20, 2, 21, 1),
    Sketcher.Constraint("Coincident", 21, 2, 22, 1),
    Sketcher.Constraint("Coincident", 22, 2, 23, 1),
    Sketcher.Constraint("Coincident", 23, 2, 24, 1),
    Sketcher.Constraint("Coincident", 24, 2, 12, 1),
    Sketcher.Constraint("Coincident", 25, 2, 26, 1),
    Sketcher.Constraint("Coincident", 26, 2, 27, 1),
    Sketcher.Constraint("Coincident", 27, 2, 28, 1),
    Sketcher.Constraint("Coincident", 28, 2, 25, 1),
    Sketcher.Constraint("Coincident", 29, 2, 30, 2),
    Sketcher.Constraint("Coincident", 32, 1, 33, 1),
    Sketcher.Constraint("Coincident", 33, 2, 34, 1),
    Sketcher.Constraint("Coincident", 34, 2, 35, 1),
    Sketcher.Constraint("Coincident", 35, 2, 36, 1),
    Sketcher.Constraint("Coincident", 36, 2, 37, 1),
    Sketcher.Constraint("Coincident", 37, 2, 38, 2),
    Sketcher.Constraint("Coincident", 40, 1, 29, 1),
    Sketcher.Constraint("Coincident", 41, 2, 42, 2),
    Sketcher.Constraint("Coincident", 44, 1, 45, 1),
    Sketcher.Constraint("Coincident", 45, 2, 46, 2),
    Sketcher.Constraint("Coincident", 49, 1, 50, 1),
    Sketcher.Constraint("Coincident", 50, 2, 51, 2),
    Sketcher.Constraint("Coincident", 57, 1, 41, 1),
    Sketcher.Constraint("Coincident", 58, 2, 59, 1),
    Sketcher.Constraint("Coincident", 59, 2, 60, 1),
    Sketcher.Constraint("Coincident", 60, 2, 61, 1),
    Sketcher.Constraint("Coincident", 61, 2, 62, 1),
    Sketcher.Constraint("Coincident", 62, 2, 63, 1),
    Sketcher.Constraint("Coincident", 63, 2, 58, 1),
    Sketcher.Constraint("Vertical", 0),
    Sketcher.Constraint("Horizontal", 1),
    Sketcher.Constraint("Vertical", 2),
    Sketcher.Constraint("Horizontal", 3),
    Sketcher.Constraint("Vertical", 4),
    Sketcher.Constraint("Horizontal", 5),
    Sketcher.Constraint("Vertical", 6),
    Sketcher.Constraint("Horizontal", 7),
    Sketcher.Constraint("Vertical", 8),
    Sketcher.Constraint("Horizontal", 9),
    Sketcher.Constraint("Vertical", 10),
    Sketcher.Constraint("Horizontal", 11),
    Sketcher.Constraint("Vertical", 12),
    Sketcher.Constraint("Vertical", 14),
    Sketcher.Constraint("Vertical", 17),
    Sketcher.Constraint("Vertical", 19),
    Sketcher.Constraint("Vertical", 22),
    Sketcher.Constraint("Vertical", 25),
    Sketcher.Constraint("Horizontal", 26),
    Sketcher.Constraint("Vertical", 27),
    Sketcher.Constraint("Horizontal", 28),
    Sketcher.Constraint("Vertical", 34),
    Sketcher.Constraint("Horizontal", 35),
    Sketcher.Constraint("Vertical", 36),
    Sketcher.Constraint("Vertical", 58),
    Sketcher.Constraint("Vertical", 60),
    Sketcher.Constraint("Horizontal", 61),
    Sketcher.Constraint("Vertical", 62),
    Sketcher.Constraint("Horizontal", 63),
    Sketcher.Constraint("DistanceX", 1, 2, 1, 1, 3.0),
    Sketcher.Constraint("DistanceX", 7, 1, 7, 2, 3.0),
    Sketcher.Constraint("DistanceX", 63, 1, 63, 2, 3.0),
    Sketcher.Constraint("DistanceX", 5, 2, 0, 2, 3.0),
    Sketcher.Constraint("DistanceX", 13, 2, 12, 2, 3.0),
    Sketcher.Constraint("DistanceX", 17, 2, 18, 2, 3.0),
    Sketcher.Constraint("DistanceX", 14, 2, 18, 2, 3.0),
    Sketcher.Constraint("DistanceX", 25, 2, 18, 2, 2.0),
    Sketcher.Constraint("DistanceX", 33, 2, 25, 2, 1.0),
    Sketcher.Constraint("DistanceX", 35, 2, 26, 2, 1.0),
    Sketcher.Constraint("DistanceX", 35, 2, 41, 2, 2.0),
    Sketcher.Constraint("DistanceY", 18, 2, 12, 2, 3.5),
    Sketcher.Constraint("DistanceX", 34, 2, 45, 2, 1.5),
    Sketcher.Constraint("DistanceX", 45, 2, 58, 2, 1.5),
    Sketcher.Constraint("DistanceY", 15, 2, 12, 2, 1.75),
    Sketcher.Constraint("DistanceY", 13, 2, 6, 2, 1.375),
    Sketcher.Constraint("DistanceX", 3, 1, 3, 2, 1.461538),
    Sketcher.Constraint("DistanceX", 9, 2, 9, 1, 1.230769),
    Sketcher.Constraint("DistanceY", 0, 1, 0, 2, 0.269231),
    Sketcher.Constraint("DistanceY", 2, 2, 2, 1, 0.269231),
    Sketcher.Constraint("DistanceY", 4, 2, 4, 1, 1.538462),
    Sketcher.Constraint("DistanceY", 6, 2, 6, 1, 0.269231),
    Sketcher.Constraint("DistanceY", 8, 1, 8, 2, 0.269231),
    Sketcher.Constraint("DistanceY", 14, 2, 14, 1, 0.038462),
    Sketcher.Constraint("DistanceY", 17, 2, 17, 1, 0.038462),
    Sketcher.Constraint("DistanceY", 19, 1, 19, 2, 0.27524),
    Sketcher.Constraint("DistanceY", 34, 2, 34, 1, 2.038462),
    Sketcher.Constraint("DistanceY", 60, 2, 60, 1, 0.461538),
    Sketcher.Constraint("DistanceY", 62, 2, 62, 1, 0.269231),
    Sketcher.Constraint("DistanceY", 16, 2, 5, 2, 3.498798),
    Sketcher.Constraint("DistanceY", 24, 2, 8, 2, 1.124399),
    Sketcher.Constraint("DistanceY", 21, 2, 24, 2, 1.499399),
    Sketcher.Constraint("DistanceY", 37, 2, 36, 2, 0.750601),
    Sketcher.Constraint("DistanceY", 37, 2, 25, 2, 1.623798),
    Sketcher.Constraint("Distance", 13, 3.10434),
    Sketcher.Constraint("DistanceX", 61, 2, 61, 1, 2.692308),
    Sketcher.Constraint("DistanceY", 22, 1, 22, 2, 0.039062),
    Sketcher.Constraint("DistanceY", 25, 2, 25, 1, 1.153846),
    Sketcher.Constraint("DistanceY", 36, 1, 36, 2, 1.396034),
    Sketcher.Constraint("DistanceY", 58, 1, 58, 2, 0.554688),
    Sketcher.Constraint("DistanceY", -1, 1, 0, 2, 15.813958),
    Sketcher.Constraint("DistanceX", -1, 1, 20, 2, 20.584949),
    Sketcher.Constraint("DistanceY", -1, 1, 60, 2, 2.313958),
    Sketcher.Constraint("DistanceX", 9, 2, 12, 2, 1.230769),
    Sketcher.Constraint("DistanceX", 15, 2, 12, 2, 0.705529),
    Sketcher.Constraint("DistanceY", 16, 2, 20, 2, 0.018029),
    Sketcher.Constraint("DistanceX", 15, 2, 21, 2, 0.705529),
    Sketcher.Constraint("DistanceX", 14, 2, 23, 2, 0.79988),
    Sketcher.Constraint("DistanceY", 20, 2, 23, 2, 1.769231),
])
pocket2 = body.newObject("PartDesign::Pocket", "Pocket001")
pocket2.Profile = sketch3
pocket2.Length = 0.1

doc.recompute()
